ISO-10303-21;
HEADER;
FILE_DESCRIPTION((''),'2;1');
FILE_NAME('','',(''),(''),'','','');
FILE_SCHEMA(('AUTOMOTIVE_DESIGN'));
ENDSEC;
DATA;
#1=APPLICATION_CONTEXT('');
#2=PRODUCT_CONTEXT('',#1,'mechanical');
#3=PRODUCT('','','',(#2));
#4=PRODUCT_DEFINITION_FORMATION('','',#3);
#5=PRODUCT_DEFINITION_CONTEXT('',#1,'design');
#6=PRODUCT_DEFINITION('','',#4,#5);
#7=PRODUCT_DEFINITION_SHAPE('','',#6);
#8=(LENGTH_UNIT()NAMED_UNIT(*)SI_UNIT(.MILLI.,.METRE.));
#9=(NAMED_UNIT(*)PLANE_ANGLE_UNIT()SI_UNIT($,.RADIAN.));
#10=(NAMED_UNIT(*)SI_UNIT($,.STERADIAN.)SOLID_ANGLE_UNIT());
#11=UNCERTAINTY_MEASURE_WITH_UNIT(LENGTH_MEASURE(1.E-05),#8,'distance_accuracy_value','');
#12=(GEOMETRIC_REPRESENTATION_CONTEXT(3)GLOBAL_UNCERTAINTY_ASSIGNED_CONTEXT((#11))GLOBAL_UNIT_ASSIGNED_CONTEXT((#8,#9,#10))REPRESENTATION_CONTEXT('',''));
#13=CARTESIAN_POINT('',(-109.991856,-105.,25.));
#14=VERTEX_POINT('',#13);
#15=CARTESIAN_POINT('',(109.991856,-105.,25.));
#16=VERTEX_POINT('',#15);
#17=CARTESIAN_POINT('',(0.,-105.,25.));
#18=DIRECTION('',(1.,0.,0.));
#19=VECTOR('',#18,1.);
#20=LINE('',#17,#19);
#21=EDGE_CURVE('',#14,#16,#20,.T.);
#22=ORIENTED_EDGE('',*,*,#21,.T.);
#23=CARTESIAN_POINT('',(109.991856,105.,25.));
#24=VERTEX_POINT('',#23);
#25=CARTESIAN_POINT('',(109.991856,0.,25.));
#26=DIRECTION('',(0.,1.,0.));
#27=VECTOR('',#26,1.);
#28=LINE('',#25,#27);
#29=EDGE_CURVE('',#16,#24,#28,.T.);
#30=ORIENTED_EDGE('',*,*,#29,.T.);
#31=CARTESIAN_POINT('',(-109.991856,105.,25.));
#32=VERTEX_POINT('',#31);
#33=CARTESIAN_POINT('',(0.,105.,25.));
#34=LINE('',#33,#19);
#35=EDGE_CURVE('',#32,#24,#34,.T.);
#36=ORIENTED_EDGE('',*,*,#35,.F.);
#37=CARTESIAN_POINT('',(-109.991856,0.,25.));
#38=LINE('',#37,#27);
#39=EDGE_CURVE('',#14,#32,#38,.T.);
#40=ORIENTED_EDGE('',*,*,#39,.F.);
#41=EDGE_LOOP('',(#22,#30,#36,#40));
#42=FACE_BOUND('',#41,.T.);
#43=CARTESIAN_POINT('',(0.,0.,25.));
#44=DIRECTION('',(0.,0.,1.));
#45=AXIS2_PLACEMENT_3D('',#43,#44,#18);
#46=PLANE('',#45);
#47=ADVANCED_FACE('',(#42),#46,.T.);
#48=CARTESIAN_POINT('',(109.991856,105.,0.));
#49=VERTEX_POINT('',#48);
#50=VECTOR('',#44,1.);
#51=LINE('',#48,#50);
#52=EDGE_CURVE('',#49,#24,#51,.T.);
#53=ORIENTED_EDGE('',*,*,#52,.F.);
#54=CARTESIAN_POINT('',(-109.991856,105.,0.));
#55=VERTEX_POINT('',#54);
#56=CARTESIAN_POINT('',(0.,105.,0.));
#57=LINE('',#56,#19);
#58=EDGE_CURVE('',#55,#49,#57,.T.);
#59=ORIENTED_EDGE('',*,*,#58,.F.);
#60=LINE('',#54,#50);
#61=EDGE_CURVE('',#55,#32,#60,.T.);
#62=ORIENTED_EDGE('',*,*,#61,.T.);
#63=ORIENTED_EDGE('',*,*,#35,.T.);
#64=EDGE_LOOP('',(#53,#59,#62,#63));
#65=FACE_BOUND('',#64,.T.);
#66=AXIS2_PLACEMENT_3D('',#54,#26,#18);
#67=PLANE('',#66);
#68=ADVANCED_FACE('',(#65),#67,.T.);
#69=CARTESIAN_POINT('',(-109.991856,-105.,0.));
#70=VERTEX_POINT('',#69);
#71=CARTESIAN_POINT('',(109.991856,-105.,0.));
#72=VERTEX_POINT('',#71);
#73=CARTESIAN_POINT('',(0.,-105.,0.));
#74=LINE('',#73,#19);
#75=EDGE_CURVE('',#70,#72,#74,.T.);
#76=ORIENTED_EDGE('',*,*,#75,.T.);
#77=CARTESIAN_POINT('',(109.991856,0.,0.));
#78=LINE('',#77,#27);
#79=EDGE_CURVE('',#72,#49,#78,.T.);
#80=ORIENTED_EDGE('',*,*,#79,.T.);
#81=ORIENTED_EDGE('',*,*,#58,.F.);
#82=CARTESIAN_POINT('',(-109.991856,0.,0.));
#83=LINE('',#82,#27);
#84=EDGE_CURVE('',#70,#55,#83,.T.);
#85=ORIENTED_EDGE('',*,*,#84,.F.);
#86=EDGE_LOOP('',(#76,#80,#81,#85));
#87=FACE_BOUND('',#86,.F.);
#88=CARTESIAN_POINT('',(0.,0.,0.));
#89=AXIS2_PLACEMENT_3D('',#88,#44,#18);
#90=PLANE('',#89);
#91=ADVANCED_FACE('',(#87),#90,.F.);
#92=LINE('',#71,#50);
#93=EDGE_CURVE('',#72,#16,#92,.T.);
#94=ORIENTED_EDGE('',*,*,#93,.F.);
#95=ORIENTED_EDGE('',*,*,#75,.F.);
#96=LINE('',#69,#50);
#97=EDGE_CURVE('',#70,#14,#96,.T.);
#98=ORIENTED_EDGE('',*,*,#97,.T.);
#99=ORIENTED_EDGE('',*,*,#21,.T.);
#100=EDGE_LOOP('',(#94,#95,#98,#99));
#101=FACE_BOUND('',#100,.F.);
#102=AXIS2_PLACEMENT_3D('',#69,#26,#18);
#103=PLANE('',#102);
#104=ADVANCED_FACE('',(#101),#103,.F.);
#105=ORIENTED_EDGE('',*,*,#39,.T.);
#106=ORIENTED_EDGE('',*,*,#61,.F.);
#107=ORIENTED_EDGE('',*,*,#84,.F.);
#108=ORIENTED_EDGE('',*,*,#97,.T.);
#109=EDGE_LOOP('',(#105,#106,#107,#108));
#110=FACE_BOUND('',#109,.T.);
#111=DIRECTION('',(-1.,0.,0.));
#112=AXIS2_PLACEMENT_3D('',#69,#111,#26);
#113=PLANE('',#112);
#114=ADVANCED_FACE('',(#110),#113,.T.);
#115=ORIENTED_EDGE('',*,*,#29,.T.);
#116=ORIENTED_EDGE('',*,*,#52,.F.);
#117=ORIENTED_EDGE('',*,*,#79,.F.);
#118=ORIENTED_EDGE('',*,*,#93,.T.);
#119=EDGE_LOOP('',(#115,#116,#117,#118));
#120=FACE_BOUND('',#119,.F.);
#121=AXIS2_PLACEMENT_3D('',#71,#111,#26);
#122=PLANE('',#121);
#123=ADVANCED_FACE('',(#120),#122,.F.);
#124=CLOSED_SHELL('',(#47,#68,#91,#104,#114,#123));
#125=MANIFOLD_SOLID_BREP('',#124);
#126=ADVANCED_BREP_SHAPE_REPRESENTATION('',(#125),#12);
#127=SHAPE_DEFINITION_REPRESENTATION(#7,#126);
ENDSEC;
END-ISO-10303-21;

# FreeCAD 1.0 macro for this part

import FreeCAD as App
import Part
import Sketcher

V = App.Vector


def add_polygon(sketch, points):
    """Adds a closed chain of lines whose ends are joined by coincident constraints."""
    first, n = sketch.GeometryCount, len(points)
    for a, b in zip(points, points[1:] + points[:1]):
        sketch.addGeometry(Part.LineSegment(App.Vector(*a, 0), App.Vector(*b, 0)), False)
    for i in range(n):
        sketch.addConstraint(Sketcher.Constraint("Coincident", first + i, 2, first + (i + 1) % n, 1))

doc = App.newDocument("Part")
body = doc.addObject("PartDesign::Body", "Body")

# Sketch on XY plane
sketch1 = body.newObject("Sketcher::SketchObject", "Sketch")
sketch1.AttachmentSupport = (doc.getObject("XY_Plane"), [""])
sketch1.MapMode = "FlatFace"
add_polygon(sketch1, [(-110, 105), (-110, -105), (110, -105), (110, 105)])  # lines 0-3
sketch1.addConstraint([
    Sketcher.Constraint("Vertical", 0),
    Sketcher.Constraint("Horizontal", 1),
    Sketcher.Constraint("Vertical", 2),
    Sketcher.Constraint("Horizontal", 3),
    Sketcher.Constraint("Symmetric", 0, 2, 2, 2, -1, 1),
    Sketcher.Constraint("DistanceY", 0, 2, 0, 1, 210.0),
    Sketcher.Constraint("DistanceX", 1, 1, 1, 2, 219.983712),
])
pad1 = body.newObject("PartDesign::Pad", "Pad")
pad1.Profile = sketch1
pad1.Length = 25

# Sketch on XY plane
sketch2 = body.newObject("Sketcher::SketchObject", "Sketch001")
sketch2.AttachmentSupport = (doc.getObject("XY_Plane"), [""])
sketch2.MapMode = "FlatFace"
sketch2.AttachmentOffset = App.Placement(V(0, 0, 25), App.Rotation())
add_polygon(sketch2, [(-84, 90), (-84, -90), (84, -90), (84, 90)])  # lines 0-3
sketch2.addConstraint([
    Sketcher.Constraint("Vertical", 0),
    Sketcher.Constraint("Horizontal", 1),
    Sketcher.Constraint("Vertical", 2),
    Sketcher.Constraint("Horizontal", 3),
    Sketcher.Constraint("Symmetric", 0, 2, 2, 2, -1, 1),
    Sketcher.Constraint("DistanceY", 0, 2, 0, 1, 180.0),
    Sketcher.Constraint("DistanceX", 1, 1, 1, 2, 168.755014),
])
pocket1 = body.newObject("PartDesign::Pocket", "Pocket")
pocket1.Profile = sketch2
pocket1.Length = 8
pocket1.Reversed = True

doc.recompute()
